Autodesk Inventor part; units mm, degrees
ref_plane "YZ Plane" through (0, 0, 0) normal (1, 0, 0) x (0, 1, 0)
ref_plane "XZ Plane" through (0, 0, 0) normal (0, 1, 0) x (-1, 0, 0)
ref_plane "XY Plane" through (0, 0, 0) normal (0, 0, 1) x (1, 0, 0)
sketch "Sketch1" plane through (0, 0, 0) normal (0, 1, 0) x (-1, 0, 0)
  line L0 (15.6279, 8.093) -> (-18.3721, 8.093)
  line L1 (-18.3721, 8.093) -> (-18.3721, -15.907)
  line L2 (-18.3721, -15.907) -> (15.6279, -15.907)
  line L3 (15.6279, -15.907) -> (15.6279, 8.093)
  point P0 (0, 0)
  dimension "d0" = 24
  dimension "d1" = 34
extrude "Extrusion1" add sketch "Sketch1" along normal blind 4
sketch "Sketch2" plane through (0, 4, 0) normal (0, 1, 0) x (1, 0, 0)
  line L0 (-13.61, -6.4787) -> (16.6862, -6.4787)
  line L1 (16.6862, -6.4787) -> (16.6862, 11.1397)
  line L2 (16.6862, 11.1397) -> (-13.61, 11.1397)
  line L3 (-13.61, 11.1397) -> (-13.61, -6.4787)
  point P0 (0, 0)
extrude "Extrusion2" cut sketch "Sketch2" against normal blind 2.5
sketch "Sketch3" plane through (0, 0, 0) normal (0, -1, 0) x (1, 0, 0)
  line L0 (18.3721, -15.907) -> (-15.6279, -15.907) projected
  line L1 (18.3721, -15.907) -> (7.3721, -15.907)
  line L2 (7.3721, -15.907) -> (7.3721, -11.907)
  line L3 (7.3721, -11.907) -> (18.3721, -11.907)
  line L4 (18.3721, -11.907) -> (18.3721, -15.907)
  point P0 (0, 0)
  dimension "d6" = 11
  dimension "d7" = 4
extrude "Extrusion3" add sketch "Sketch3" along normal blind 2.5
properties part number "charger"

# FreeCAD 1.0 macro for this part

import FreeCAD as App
import Part
import Sketcher
from FreeCAD import Vector

doc = App.newDocument("Part")
params = doc.addObject("Spreadsheet::Sheet", "Params")
for row, (alias, value) in enumerate([
    ("sketch1_width", "34 mm"),
    ("sketch1_height", "24 mm"),
    ("pad1_length", "4 mm"),
    ("pocket1_length", "2.5 mm"),
    ("sketch3_width", "11 mm"),
    ("sketch3_height", "4 mm"),
    ("pad2_length", "2.5 mm"),
], start=1):
    params.set(f"A{row}", alias)
    params.set(f"B{row}", "=" + value)
    params.setAlias(f"B{row}", alias)

body = doc.addObject("PartDesign::Body", "Body")

sketch1 = doc.addObject("Sketcher::SketchObject", "Sketch")
body.addObject(sketch1)
sketch1.AttachmentSupport = (doc.XZ_Plane, [""])
sketch1.MapMode = "FlatFace"
sketch1.addGeometry(Part.LineSegment(Vector(-16, -16, 0), Vector(-16, 8, 0)), False)
sketch1.addGeometry(Part.LineSegment(Vector(-16, 8, 0), Vector(18, 8, 0)), False)
sketch1.addGeometry(Part.LineSegment(Vector(18, 8, 0), Vector(18, -16, 0)), False)
sketch1.addGeometry(Part.LineSegment(Vector(18, -16, 0), Vector(-16, -16, 0)), False)
sketch1.addConstraint(Sketcher.Constraint("Coincident", 0, 2, 1, 1))
sketch1.addConstraint(Sketcher.Constraint("Coincident", 1, 2, 2, 1))
sketch1.addConstraint(Sketcher.Constraint("Coincident", 2, 2, 3, 1))
sketch1.addConstraint(Sketcher.Constraint("Coincident", 3, 2, 0, 1))
sketch1.addConstraint(Sketcher.Constraint("Vertical", 0))
sketch1.addConstraint(Sketcher.Constraint("Horizontal", 1))
sketch1.addConstraint(Sketcher.Constraint("Vertical", 2))
sketch1.addConstraint(Sketcher.Constraint("Horizontal", 3))
sketch1.addConstraint(Sketcher.Constraint("DistanceX", 1, 1, 1, 2, 34.0))
sketch1.addConstraint(Sketcher.Constraint("DistanceY", 0, 1, 0, 2, 24.0))
sketch1.addConstraint(Sketcher.Constraint("DistanceX", 0, 2, -1, 1, 15.628))
sketch1.addConstraint(Sketcher.Constraint("DistanceY", -1, 1, 0, 2, 8.093))
sketch1.setExpression("Constraints[8]", "Params.sketch1_width")
sketch1.setExpression("Constraints[9]", "Params.sketch1_height")
pad1 = doc.addObject("PartDesign::Pad", "Pad")
body.addObject(pad1)
pad1.Profile = sketch1
pad1.setExpression("Length", "Params.pad1_length")
pad1.Reversed = True

sketch2 = doc.addObject("Sketcher::SketchObject", "Sketch001")
body.addObject(sketch2)
sketch2.AttachmentSupport = (doc.XZ_Plane, [""])
sketch2.MapMode = "FlatFace"
sketch2.AttachmentOffset = App.Placement(Vector(0, 0, -4), App.Rotation())
sketch2.addGeometry(Part.LineSegment(Vector(-14, -11, 0), Vector(-14, 6, 0)), False)
sketch2.addGeometry(Part.LineSegment(Vector(-14, 6, 0), Vector(17, 6, 0)), False)
sketch2.addGeometry(Part.LineSegment(Vector(17, 6, 0), Vector(17, -11, 0)), False)
sketch2.addGeometry(Part.LineSegment(Vector(17, -11, 0), Vector(-14, -11, 0)), False)
sketch2.addConstraint(Sketcher.Constraint("Coincident", 0, 2, 1, 1))
sketch2.addConstraint(Sketcher.Constraint("Coincident", 1, 2, 2, 1))
sketch2.addConstraint(Sketcher.Constraint("Coincident", 2, 2, 3, 1))
sketch2.addConstraint(Sketcher.Constraint("Coincident", 3, 2, 0, 1))
sketch2.addConstraint(Sketcher.Constraint("Vertical", 0))
sketch2.addConstraint(Sketcher.Constraint("Horizontal", 1))
sketch2.addConstraint(Sketcher.Constraint("Vertical", 2))
sketch2.addConstraint(Sketcher.Constraint("Horizontal", 3))
sketch2.addConstraint(Sketcher.Constraint("DistanceX", 0, 2, -1, 1, 13.61))
sketch2.addConstraint(Sketcher.Constraint("DistanceX", 1, 1, 1, 2, 30.2962))
sketch2.addConstraint(Sketcher.Constraint("DistanceY", 0, 1, 0, 2, 17.6184))
sketch2.addConstraint(Sketcher.Constraint("DistanceY", -1, 1, 0, 2, 6.4787))
pocket1 = doc.addObject("PartDesign::Pocket", "Pocket")
body.addObject(pocket1)
pocket1.Profile = sketch2
pocket1.setExpression("Length", "Params.pocket1_length")
pocket1.Reversed = True

sketch3 = doc.addObject("Sketcher::SketchObject", "Sketch002")
body.addObject(sketch3)
sketch3.AttachmentSupport = (doc.XZ_Plane, [""])
sketch3.MapMode = "FlatFace"
sketch3.addGeometry(Part.LineSegment(Vector(7.4, -15.9, 0), Vector(18.4, -15.9, 0)), False)
sketch3.addGeometry(Part.LineSegment(Vector(18.4, -15.9, 0), Vector(18.4, -11.9, 0)), False)
sketch3.addGeometry(Part.LineSegment(Vector(18.4, -11.9, 0), Vector(7.4, -11.9, 0)), False)
sketch3.addGeometry(Part.LineSegment(Vector(7.4, -11.9, 0), Vector(7.4, -15.9, 0)), False)
sketch3.addConstraint(Sketcher.Constraint("Coincident", 0, 2, 1, 1))
sketch3.addConstraint(Sketcher.Constraint("Coincident", 1, 2, 2, 1))
sketch3.addConstraint(Sketcher.Constraint("Coincident", 2, 2, 3, 1))
sketch3.addConstraint(Sketcher.Constraint("Coincident", 3, 2, 0, 1))
sketch3.addConstraint(Sketcher.Constraint("Horizontal", 0))
sketch3.addConstraint(Sketcher.Constraint("Vertical", 1))
sketch3.addConstraint(Sketcher.Constraint("Horizontal", 2))
sketch3.addConstraint(Sketcher.Constraint("Vertical", 3))
sketch3.addConstraint(Sketcher.Constraint("DistanceX", 0, 1, 0, 2, 11.0))
sketch3.addConstraint(Sketcher.Constraint("DistanceY", 1, 1, 1, 2, 4.0))
sketch3.addConstraint(Sketcher.Constraint("DistanceX", -1, 1, 0, 2, 18.372))
sketch3.addConstraint(Sketcher.Constraint("DistanceY", 0, 2, -1, 1, 15.907))
sketch3.setExpression("Constraints[8]", "Params.sketch3_width")
sketch3.setExpression("Constraints[9]", "Params.sketch3_height")
pad2 = doc.addObject("PartDesign::Pad", "Pad001")
body.addObject(pad2)
pad2.Profile = sketch3
pad2.setExpression("Length", "Params.pad2_length")

doc.recompute()
